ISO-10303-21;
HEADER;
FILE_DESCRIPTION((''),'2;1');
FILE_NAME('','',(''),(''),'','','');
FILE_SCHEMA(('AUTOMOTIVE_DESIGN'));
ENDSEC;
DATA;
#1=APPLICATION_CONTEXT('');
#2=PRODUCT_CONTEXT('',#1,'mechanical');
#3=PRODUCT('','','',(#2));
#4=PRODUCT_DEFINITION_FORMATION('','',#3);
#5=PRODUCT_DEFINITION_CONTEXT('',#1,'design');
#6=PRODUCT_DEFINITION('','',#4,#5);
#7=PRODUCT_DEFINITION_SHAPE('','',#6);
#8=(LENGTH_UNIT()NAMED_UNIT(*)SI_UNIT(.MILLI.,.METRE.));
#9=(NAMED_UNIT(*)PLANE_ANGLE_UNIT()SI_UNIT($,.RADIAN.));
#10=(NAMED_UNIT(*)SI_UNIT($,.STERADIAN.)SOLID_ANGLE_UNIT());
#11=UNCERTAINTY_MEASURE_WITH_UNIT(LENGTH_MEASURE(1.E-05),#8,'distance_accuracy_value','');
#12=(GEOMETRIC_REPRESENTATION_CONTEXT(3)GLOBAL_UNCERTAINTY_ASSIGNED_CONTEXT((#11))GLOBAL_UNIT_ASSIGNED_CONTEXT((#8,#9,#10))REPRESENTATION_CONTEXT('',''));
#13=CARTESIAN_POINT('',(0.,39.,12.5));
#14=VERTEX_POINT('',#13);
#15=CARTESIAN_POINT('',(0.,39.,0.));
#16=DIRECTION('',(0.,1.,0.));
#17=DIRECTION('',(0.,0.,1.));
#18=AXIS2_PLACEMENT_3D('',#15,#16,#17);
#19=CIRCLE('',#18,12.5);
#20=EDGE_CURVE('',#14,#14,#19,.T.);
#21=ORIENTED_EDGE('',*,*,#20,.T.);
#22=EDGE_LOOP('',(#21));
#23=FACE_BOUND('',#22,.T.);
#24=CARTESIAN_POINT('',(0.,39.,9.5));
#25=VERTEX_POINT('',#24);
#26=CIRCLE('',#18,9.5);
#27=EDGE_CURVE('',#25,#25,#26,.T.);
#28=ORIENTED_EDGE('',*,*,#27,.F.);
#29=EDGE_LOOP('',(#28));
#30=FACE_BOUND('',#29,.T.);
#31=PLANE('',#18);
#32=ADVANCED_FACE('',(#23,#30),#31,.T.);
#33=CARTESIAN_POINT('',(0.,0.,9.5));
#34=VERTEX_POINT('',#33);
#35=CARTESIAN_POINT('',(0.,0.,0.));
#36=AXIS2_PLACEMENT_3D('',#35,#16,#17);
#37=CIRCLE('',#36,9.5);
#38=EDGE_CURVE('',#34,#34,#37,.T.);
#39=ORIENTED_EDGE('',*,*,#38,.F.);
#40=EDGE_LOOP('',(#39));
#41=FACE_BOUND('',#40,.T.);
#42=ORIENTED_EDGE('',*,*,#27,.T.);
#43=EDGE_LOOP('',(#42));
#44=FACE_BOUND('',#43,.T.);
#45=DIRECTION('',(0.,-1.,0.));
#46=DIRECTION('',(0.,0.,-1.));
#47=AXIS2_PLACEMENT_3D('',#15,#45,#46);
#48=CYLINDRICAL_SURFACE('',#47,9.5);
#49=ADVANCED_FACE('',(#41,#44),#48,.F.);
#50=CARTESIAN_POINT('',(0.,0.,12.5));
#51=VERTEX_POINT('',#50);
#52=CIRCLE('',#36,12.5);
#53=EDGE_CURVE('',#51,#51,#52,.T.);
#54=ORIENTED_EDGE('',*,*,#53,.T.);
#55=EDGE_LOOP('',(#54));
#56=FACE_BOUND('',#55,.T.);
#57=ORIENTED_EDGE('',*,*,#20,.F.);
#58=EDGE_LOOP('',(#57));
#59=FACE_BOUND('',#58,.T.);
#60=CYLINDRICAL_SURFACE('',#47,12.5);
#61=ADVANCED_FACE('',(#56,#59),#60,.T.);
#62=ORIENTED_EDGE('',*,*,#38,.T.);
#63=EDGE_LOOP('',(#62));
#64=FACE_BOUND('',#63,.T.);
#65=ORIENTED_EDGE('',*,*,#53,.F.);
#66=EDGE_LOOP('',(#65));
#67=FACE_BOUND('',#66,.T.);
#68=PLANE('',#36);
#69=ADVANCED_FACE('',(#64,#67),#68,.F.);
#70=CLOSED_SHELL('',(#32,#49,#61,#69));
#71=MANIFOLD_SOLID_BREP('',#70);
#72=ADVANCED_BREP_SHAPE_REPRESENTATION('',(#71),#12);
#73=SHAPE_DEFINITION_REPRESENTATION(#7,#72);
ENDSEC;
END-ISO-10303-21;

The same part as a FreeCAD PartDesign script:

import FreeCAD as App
import Part
import Sketcher

V = App.Vector

doc = App.newDocument("Part")
body = doc.addObject("PartDesign::Body", "Body")

# Sketch on XZ plane
sketch1 = doc.addObject("Sketcher::SketchObject", "Sketch")
body.addObject(sketch1)
sketch1.AttachmentSupport = (doc.XZ_Plane, [""])
sketch1.MapMode = "FlatFace"
sketch1.addGeometry([
    Part.Circle(V(0, 0, 0), V(0, 0, 1), 12),
    Part.Circle(V(0, 0, 0), V(0, 0, 1), 10),
], False)
sketch1.addConstraint([
    Sketcher.Constraint("Coincident", 0, 3, -1, 1),
    Sketcher.Constraint("Coincident", 1, 3, -1, 1),
    Sketcher.Constraint("Diameter", 0, 25.0),
    Sketcher.Constraint("Diameter", 1, 19.0),
])
pad1 = doc.addObject("PartDesign::Pad", "Pad")
body.addObject(pad1)
pad1.Profile = sketch1
pad1.Length = 39
pad1.Reversed = True

doc.recompute()
